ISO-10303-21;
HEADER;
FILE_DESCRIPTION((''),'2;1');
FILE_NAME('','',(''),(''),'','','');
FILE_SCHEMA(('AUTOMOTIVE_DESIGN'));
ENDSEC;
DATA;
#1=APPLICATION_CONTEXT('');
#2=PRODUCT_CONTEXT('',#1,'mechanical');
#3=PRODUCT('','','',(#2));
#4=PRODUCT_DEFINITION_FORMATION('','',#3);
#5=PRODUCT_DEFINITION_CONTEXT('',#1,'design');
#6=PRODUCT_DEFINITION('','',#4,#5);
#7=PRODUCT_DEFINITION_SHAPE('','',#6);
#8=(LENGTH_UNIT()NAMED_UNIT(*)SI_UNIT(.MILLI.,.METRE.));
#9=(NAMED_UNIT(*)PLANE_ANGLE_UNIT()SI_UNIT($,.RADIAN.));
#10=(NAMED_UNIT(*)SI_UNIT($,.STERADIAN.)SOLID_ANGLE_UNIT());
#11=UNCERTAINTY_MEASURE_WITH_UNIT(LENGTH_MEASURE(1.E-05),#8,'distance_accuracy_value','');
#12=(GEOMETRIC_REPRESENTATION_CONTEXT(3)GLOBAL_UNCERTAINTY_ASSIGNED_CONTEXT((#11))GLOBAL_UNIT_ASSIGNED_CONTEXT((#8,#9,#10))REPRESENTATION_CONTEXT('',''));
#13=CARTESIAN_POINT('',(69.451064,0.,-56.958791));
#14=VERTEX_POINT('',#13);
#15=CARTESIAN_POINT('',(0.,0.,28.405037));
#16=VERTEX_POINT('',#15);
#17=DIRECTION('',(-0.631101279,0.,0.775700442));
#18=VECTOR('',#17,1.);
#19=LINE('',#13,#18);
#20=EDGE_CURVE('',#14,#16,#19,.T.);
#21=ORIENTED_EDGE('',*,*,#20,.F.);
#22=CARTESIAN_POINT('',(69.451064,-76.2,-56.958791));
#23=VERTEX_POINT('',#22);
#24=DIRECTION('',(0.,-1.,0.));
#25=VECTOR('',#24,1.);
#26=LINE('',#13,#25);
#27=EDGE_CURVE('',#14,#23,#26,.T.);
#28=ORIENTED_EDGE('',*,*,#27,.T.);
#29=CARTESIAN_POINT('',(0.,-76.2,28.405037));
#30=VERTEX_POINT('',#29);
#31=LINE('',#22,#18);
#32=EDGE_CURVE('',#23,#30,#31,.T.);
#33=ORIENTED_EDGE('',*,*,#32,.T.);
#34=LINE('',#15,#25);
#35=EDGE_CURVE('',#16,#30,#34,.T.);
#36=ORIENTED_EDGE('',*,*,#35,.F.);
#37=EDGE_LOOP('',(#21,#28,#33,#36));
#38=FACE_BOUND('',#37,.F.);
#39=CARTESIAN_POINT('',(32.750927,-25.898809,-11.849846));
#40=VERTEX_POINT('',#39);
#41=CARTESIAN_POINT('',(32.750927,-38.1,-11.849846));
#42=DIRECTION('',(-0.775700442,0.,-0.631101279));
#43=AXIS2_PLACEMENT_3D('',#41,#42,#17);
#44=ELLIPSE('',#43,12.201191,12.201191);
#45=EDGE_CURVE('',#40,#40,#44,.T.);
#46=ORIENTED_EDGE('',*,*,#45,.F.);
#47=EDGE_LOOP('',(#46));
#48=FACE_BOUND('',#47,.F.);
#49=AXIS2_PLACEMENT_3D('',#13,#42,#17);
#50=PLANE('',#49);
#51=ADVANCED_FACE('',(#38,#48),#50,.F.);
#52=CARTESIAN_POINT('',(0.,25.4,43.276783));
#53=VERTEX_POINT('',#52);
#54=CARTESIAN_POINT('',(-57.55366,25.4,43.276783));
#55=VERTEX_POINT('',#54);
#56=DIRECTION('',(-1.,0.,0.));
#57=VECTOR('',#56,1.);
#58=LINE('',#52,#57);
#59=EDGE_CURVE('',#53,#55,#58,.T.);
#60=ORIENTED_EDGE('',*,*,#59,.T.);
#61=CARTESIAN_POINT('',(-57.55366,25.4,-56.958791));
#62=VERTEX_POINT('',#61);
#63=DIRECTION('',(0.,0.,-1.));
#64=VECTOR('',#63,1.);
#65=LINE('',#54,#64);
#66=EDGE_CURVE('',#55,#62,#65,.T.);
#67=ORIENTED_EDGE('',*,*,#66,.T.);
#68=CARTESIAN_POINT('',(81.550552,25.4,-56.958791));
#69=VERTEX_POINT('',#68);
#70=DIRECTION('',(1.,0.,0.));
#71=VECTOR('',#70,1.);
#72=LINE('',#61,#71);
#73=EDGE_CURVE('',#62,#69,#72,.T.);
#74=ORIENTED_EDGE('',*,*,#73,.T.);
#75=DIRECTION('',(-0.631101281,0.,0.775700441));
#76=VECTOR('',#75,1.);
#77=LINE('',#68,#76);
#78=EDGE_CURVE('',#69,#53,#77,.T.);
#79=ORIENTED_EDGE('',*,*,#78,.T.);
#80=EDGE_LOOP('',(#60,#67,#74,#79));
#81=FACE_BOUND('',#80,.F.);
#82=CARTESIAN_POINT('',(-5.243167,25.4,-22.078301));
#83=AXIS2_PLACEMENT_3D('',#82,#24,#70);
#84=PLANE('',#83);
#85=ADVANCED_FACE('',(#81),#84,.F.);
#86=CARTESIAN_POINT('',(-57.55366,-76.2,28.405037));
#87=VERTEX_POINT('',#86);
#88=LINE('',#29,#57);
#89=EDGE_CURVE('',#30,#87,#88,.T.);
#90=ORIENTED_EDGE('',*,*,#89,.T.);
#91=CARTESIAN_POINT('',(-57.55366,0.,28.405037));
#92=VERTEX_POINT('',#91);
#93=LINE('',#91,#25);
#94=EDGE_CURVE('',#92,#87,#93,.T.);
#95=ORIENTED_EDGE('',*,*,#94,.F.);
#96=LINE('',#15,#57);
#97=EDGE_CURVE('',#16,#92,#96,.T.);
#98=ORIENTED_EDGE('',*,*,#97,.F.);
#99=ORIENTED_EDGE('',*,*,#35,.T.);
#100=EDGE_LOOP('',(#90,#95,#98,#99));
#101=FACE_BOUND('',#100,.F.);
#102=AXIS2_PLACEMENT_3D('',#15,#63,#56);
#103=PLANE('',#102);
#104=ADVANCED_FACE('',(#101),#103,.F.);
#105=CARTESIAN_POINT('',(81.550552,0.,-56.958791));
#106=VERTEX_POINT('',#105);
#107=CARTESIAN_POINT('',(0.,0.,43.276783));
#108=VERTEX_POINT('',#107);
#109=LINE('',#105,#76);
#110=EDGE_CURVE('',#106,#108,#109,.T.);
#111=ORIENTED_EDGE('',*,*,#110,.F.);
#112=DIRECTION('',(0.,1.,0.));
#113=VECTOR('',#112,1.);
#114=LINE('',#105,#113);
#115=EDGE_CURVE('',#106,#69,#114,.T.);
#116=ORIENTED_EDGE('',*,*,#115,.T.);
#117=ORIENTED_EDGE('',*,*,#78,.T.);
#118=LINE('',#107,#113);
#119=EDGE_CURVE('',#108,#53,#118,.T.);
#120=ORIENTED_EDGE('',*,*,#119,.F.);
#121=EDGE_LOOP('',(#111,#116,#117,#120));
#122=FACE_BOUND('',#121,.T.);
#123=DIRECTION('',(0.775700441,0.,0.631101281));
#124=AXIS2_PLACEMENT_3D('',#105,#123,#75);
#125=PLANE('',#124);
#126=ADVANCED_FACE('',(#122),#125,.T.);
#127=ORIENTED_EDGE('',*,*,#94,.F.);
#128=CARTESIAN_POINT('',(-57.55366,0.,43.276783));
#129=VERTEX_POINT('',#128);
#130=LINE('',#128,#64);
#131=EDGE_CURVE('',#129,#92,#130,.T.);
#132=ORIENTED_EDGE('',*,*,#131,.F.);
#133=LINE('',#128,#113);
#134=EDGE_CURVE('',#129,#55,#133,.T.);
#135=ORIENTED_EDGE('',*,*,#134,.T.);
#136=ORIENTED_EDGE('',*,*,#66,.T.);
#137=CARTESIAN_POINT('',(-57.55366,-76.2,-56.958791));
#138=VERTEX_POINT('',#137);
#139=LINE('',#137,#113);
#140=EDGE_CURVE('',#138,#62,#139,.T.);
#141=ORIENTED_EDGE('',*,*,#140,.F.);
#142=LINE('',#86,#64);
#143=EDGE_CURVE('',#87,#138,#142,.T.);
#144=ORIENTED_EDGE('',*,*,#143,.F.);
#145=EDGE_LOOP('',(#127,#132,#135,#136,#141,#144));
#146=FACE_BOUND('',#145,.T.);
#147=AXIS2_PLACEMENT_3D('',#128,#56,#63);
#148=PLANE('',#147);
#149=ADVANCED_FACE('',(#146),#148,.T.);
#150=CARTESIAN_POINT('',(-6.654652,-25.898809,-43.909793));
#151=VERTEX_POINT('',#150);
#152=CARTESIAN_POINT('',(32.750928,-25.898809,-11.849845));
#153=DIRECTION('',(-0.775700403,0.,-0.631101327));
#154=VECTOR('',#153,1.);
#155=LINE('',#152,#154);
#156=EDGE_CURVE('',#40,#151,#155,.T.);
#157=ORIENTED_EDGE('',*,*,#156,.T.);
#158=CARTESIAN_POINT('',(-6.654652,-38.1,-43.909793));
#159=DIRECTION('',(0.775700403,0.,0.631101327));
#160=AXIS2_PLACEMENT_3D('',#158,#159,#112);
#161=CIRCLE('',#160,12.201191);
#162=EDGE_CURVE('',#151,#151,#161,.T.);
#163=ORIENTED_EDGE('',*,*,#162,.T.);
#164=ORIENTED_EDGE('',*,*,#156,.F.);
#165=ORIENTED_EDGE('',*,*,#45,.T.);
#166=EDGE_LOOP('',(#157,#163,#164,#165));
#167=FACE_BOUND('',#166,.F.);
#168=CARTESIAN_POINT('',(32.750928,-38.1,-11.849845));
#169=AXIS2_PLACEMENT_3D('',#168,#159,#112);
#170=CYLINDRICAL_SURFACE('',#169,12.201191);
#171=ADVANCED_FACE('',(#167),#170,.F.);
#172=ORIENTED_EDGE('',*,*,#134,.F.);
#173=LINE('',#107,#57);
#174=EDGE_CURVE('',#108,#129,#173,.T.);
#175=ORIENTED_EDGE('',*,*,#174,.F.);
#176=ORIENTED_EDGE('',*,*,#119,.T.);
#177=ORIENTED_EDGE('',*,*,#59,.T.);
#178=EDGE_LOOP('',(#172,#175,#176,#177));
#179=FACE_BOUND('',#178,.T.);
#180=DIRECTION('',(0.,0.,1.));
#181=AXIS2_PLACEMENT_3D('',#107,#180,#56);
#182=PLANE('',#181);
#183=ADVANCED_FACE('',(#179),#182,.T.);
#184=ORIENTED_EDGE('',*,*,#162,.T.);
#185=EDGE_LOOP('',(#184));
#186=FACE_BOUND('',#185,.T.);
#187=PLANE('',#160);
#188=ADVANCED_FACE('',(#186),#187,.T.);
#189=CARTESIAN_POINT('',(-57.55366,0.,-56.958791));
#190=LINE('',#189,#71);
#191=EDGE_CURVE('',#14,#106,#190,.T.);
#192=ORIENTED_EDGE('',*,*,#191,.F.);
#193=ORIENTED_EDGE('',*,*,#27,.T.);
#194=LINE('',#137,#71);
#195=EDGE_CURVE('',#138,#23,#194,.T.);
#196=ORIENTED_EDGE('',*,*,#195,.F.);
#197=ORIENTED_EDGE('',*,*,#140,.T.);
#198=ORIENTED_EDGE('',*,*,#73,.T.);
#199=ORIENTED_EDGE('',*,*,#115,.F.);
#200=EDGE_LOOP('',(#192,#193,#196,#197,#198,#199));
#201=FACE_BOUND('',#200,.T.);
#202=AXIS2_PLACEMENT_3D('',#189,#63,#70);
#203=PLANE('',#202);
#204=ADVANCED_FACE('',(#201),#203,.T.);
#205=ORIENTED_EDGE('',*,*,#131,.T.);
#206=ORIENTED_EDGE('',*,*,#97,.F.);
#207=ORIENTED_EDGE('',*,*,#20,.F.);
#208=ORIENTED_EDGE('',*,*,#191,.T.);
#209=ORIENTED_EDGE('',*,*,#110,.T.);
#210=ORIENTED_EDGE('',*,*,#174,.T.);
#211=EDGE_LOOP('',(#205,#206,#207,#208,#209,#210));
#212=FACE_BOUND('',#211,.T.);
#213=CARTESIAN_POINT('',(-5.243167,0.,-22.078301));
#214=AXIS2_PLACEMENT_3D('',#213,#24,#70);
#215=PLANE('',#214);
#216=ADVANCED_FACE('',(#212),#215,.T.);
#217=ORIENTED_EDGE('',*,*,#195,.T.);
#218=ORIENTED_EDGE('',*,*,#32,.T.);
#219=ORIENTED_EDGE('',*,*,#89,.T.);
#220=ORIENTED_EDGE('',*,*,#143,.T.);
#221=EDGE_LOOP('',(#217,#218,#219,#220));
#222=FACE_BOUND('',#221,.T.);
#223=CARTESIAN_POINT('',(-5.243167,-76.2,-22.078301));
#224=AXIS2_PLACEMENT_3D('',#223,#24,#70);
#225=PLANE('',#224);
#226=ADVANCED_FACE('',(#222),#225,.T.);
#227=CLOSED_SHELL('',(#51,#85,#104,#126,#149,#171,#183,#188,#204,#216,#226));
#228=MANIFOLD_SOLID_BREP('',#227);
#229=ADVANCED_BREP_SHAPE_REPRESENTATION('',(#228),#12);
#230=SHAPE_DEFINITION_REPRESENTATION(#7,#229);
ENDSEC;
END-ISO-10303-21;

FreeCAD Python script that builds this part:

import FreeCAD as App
import Part
import Sketcher
Q = App.Units.Quantity

doc = App.newDocument("Part")
body = doc.addObject("PartDesign::Body", "Body")

# Sketch on XZ plane
sketch1 = body.newObject("Sketcher::SketchObject", "Sketch")
sketch1.AttachmentSupport = (doc.getObject("XZ_Plane"), [""])
sketch1.MapMode = "FlatFace"
sketch1.addGeometry([
    Part.LineSegment(App.Vector(69, -57, 0), App.Vector(0, 28, 0)),
    Part.LineSegment(App.Vector(0, 28, 0), App.Vector(-58, 28, 0)),
    Part.LineSegment(App.Vector(-58, 28, 0), App.Vector(-58, -57, 0)),
    Part.LineSegment(App.Vector(-58, -57, 0), App.Vector(69, -57, 0)),
], False)
sketch1.addConstraint([
    Sketcher.Constraint("Coincident", 0, 2, 1, 1),
    Sketcher.Constraint("Coincident", 1, 2, 2, 1),
    Sketcher.Constraint("Coincident", 2, 2, 3, 1),
    Sketcher.Constraint("Coincident", 3, 2, 0, 1),
    Sketcher.Constraint("Horizontal", 1),
    Sketcher.Constraint("Vertical", 2),
    Sketcher.Constraint("Horizontal", 3),
    Sketcher.Constraint("PointOnObject", 0, 2, -2),
    Sketcher.Constraint("DistanceX", 1, 2, 1, 1, 57.55366),
    Sketcher.Constraint("DistanceY", 2, 2, 2, 1, 85.363828),
    Sketcher.Constraint("DistanceX", 3, 1, 3, 2, 127.004724),
    Sketcher.Constraint("DistanceY", 2, 2, -1, 1, 56.958791),
])
pad1 = body.newObject("PartDesign::Pad", "Pad")
pad1.Profile = sketch1
pad1.Length = Q("3 in")

# Sketch on XZ plane
sketch2 = body.newObject("Sketcher::SketchObject", "Sketch001")
sketch2.AttachmentSupport = (doc.getObject("XZ_Plane"), [""])
sketch2.MapMode = "FlatFace"
sketch2.addGeometry([
    Part.LineSegment(App.Vector(-58, -57, 0), App.Vector(82, -57, 0)),
    Part.LineSegment(App.Vector(82, -57, 0), App.Vector(0, 43, 0)),
    Part.LineSegment(App.Vector(0, 43, 0), App.Vector(-58, 43, 0)),
    Part.LineSegment(App.Vector(-58, 43, 0), App.Vector(-58, -57, 0)),
], False)
sketch2.addConstraint([
    Sketcher.Constraint("Coincident", 0, 2, 1, 1),
    Sketcher.Constraint("Coincident", 1, 2, 2, 1),
    Sketcher.Constraint("Coincident", 2, 2, 3, 1),
    Sketcher.Constraint("Coincident", 3, 2, 0, 1),
    Sketcher.Constraint("Horizontal", 0),
    Sketcher.Constraint("Horizontal", 2),
    Sketcher.Constraint("Vertical", 3),
    Sketcher.Constraint("PointOnObject", 1, 2, -2),
    Sketcher.Constraint("DistanceX", 0, 1, 0, 2, 139.104212),
    Sketcher.Constraint("DistanceX", 2, 2, 2, 1, 57.55366),
    Sketcher.Constraint("DistanceY", 3, 2, 3, 1, 100.235574),
    Sketcher.Constraint("DistanceY", 0, 2, -1, 1, 56.958791),
])
pad2 = body.newObject("PartDesign::Pad", "Pad001")
pad2.Profile = sketch2
pad2.Length = Q("1 in")
pad2.Reversed = True

# Sketch on an angled plane
sketch3 = body.newObject("Sketcher::SketchObject", "Sketch002")
sketch3.Placement = App.Placement(App.Vector(13.905559, 0, 11.313409), App.Rotation(App.Vector(0, 1, 0), App.Vector(-0.631101327, 0, 0.775700403), App.Vector(0.775700403, 0, 0.631101327), "ZXY"))
sketch3.addGeometry(Part.Circle(App.Vector(-38, -30, 0), App.Vector(0, 0, 1), 12), False)
sketch3.addConstraint([
    Sketcher.Constraint("DistanceX", 0, 3, -1, 1, Q("1.5 in")),
    Sketcher.Constraint("Diameter", 0, 24.402382),
    Sketcher.Constraint("DistanceY", 0, 3, -1, 1, 29.861083),
])
pocket1 = body.newObject("PartDesign::Pocket", "Pocket")
pocket1.Profile = sketch3
pocket1.Length = Q("2 in")

doc.recompute()
